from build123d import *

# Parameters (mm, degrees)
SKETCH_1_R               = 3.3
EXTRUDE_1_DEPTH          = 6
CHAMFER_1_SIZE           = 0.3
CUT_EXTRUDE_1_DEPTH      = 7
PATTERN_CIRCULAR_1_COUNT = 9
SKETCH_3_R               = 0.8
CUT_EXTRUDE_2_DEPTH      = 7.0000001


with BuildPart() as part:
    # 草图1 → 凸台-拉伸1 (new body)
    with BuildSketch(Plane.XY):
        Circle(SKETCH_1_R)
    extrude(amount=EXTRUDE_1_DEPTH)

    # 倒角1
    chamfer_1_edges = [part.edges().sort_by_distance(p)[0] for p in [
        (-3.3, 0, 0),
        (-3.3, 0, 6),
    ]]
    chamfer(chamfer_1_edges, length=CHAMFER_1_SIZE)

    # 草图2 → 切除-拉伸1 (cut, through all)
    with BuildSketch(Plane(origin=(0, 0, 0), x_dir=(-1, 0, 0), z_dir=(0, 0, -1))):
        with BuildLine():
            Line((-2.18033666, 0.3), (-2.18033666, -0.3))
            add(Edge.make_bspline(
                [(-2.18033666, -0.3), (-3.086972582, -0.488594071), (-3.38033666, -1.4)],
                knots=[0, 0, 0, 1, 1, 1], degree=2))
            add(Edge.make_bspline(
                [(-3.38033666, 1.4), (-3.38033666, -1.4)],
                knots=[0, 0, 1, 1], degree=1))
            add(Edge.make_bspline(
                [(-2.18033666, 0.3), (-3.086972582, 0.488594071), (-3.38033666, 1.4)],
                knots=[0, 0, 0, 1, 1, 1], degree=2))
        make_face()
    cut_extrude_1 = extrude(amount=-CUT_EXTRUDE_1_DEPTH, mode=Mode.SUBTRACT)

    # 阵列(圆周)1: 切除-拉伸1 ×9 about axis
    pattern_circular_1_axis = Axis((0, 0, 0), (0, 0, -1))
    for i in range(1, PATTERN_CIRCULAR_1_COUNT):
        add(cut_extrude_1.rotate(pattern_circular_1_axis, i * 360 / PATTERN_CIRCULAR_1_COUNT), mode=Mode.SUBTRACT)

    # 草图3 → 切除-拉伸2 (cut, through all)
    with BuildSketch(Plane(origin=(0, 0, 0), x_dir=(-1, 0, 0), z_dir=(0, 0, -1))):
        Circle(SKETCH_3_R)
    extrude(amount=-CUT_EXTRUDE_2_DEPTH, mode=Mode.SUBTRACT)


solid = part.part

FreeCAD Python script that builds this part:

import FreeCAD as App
import Part
import Sketcher

V = App.Vector
Q = App.Units.Quantity


def edges_at(feature, points):
    """Names of the edges that pass closest to the given points."""
    edges = feature.Shape.Edges
    near = lambda p: min(range(len(edges)), key=lambda i: edges[i].distToShape(Part.Vertex(*p))[0])
    return sorted({f"Edge{near(p) + 1}" for p in points})

doc = App.newDocument("Part")
body = doc.addObject("PartDesign::Body", "Body")

sketch1 = body.newObject("Sketcher::SketchObject", "Sketch")
sketch1.AttachmentSupport = (doc.getObject("XY_Plane"), [""])
sketch1.MapMode = "FlatFace"
sketch1.addGeometry(Part.Circle(V(0, 0, 0), V(0, 0, 1), 3.3), False)
sketch1.addConstraint([
    Sketcher.Constraint("Coincident", 0, 3, -1, 1),
    Sketcher.Constraint("Diameter", 0, Q("6.6 mm")),
])
pad1 = body.newObject("PartDesign::Pad", "Pad")
pad1.Profile = sketch1
pad1.Length = 6
doc.recompute()

chamfer = body.newObject("PartDesign::Chamfer", "Chamfer")
chamfer.Base = (pad1, edges_at(pad1, [(-3.3, 0, 0), (-3.3, 0, 6)]))
chamfer.Size = 0.3

sketch2 = body.newObject("Sketcher::SketchObject", "Sketch001")
sketch2.AttachmentSupport = (doc.getObject("XY_Plane"), [""])
sketch2.MapMode = "FlatFace"
sketch2.addGeometry([
    Part.LineSegment(V(2.180337, -0.3, 0), V(2.180337, 0.3, 0)),
    Part.BSplineCurve([V(2.180337, 0.3, 0), V(3.086973, 0.488594, 0), V(3.380337, 1.4, 0)], [3, 3], [0, 1], False, 2, [1, 1, 1], False),
    Part.BSplineCurve([V(3.380337, 1.4, 0), V(3.380337, -1.4, 0)], [2, 2], [0, 1], False, 1, [1, 1], False),
    Part.BSplineCurve([V(2.180337, -0.3, 0), V(3.086973, -0.488594, 0), V(3.380337, -1.4, 0)], [3, 3], [0, 1], False, 2, [1, 1, 1], False),
], False)
sketch2.addConstraint([
    Sketcher.Constraint("Block", 1),
    Sketcher.Constraint("Block", 2),
    Sketcher.Constraint("Block", 3),
    Sketcher.Constraint("Coincident", 0, 2, 1, 1),
    Sketcher.Constraint("Coincident", 3, 1, 0, 1),
])
pocket1 = body.newObject("PartDesign::Pocket", "Pocket")
pocket1.Profile = sketch2
pocket1.Type = "ThroughAll"
pocket1.Reversed = True
doc.recompute()

polarpattern = body.newObject("PartDesign::PolarPattern", "PolarPattern")
polarpattern.Originals = [pocket1]
polarpattern.Axis = (doc.getObject("Z_Axis"), [""])
polarpattern.Angle = 360
polarpattern.Occurrences = 9
body.Tip = polarpattern

sketch3 = body.newObject("Sketcher::SketchObject", "Sketch002")
sketch3.AttachmentSupport = (doc.getObject("XY_Plane"), [""])
sketch3.MapMode = "FlatFace"
sketch3.addGeometry(Part.Circle(V(0, 0, 0), V(0, 0, 1), 0.8), False)
sketch3.addConstraint([
    Sketcher.Constraint("Coincident", 0, 3, -1, 1),
    Sketcher.Constraint("Diameter", 0, Q("1.6 mm")),
])
pocket2 = body.newObject("PartDesign::Pocket", "Pocket001")
pocket2.Profile = sketch3
pocket2.Type = "ThroughAll"
pocket2.Reversed = True

doc.recompute()
